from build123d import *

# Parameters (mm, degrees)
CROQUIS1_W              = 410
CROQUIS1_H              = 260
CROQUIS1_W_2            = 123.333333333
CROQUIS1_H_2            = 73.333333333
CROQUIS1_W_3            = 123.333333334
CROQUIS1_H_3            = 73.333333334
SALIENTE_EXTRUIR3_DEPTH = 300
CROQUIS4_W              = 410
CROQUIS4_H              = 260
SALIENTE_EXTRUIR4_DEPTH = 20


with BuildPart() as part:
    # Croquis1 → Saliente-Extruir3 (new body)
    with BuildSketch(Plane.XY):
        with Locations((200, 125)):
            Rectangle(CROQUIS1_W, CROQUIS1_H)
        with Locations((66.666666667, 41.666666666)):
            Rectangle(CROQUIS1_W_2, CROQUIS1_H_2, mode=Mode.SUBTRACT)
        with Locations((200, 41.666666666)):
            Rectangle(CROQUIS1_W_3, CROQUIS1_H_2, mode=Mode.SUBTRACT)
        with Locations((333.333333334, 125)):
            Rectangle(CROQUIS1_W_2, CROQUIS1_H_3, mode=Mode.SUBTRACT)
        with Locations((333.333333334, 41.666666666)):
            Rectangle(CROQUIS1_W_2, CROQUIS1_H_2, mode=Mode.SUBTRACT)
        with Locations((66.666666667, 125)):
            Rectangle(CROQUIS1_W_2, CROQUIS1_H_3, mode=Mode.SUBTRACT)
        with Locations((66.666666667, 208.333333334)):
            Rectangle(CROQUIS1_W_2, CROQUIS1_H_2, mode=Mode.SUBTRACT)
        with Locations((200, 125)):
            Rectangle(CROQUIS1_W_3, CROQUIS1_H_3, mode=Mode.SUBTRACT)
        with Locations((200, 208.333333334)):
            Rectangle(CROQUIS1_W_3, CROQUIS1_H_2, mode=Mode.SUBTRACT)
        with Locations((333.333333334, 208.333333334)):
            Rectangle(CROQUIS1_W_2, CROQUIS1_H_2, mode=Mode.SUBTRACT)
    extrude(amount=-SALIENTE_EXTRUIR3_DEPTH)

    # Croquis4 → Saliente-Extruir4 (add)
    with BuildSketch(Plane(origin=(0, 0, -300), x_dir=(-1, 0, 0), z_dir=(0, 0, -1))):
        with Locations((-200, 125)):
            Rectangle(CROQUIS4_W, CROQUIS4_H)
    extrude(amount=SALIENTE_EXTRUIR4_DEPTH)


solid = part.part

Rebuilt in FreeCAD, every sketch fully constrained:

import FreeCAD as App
import Part
import Sketcher
Q = App.Units.Quantity


def add_polygon(sketch, points):
    """Adds a closed chain of lines whose ends are joined by coincident constraints."""
    first, n = sketch.GeometryCount, len(points)
    for a, b in zip(points, points[1:] + points[:1]):
        sketch.addGeometry(Part.LineSegment(App.Vector(*a, 0), App.Vector(*b, 0)), False)
    for i in range(n):
        sketch.addConstraint(Sketcher.Constraint("Coincident", first + i, 2, first + (i + 1) % n, 1))

doc = App.newDocument("Part")
body = doc.addObject("PartDesign::Body", "Body")

# Sketch on XY plane
sketch1 = body.newObject("Sketcher::SketchObject", "Sketch")
sketch1.AttachmentSupport = (doc.getObject("XY_Plane"), [""])
sketch1.MapMode = "FlatFace"
add_polygon(sketch1, [(-5, 255), (-5, -5), (405, -5), (405, 255)])  # lines 0-3
add_polygon(sketch1, [(128, 5), (5, 5), (5, 78), (128, 78)])  # lines 4-7
add_polygon(sketch1, [(262, 5), (138, 5), (138, 78), (262, 78)])  # lines 8-11
add_polygon(sketch1, [(128, 88), (5, 88), (5, 162), (128, 162)])  # lines 12-15
add_polygon(sketch1, [(262, 88), (138, 88), (138, 162), (262, 162)])  # lines 16-19
add_polygon(sketch1, [(395, 5), (272, 5), (272, 78), (395, 78)])  # lines 20-23
add_polygon(sketch1, [(395, 88), (272, 88), (272, 162), (395, 162)])  # lines 24-27
add_polygon(sketch1, [(128, 172), (5, 172), (5, 245), (128, 245)])  # lines 28-31
add_polygon(sketch1, [(262, 172), (138, 172), (138, 245), (262, 245)])  # lines 32-35
add_polygon(sketch1, [(395, 172), (272, 172), (272, 245), (395, 245)])  # lines 36-39
sketch1.addConstraint(Sketcher.Constraint("Vertical", 0))
sketch1.addConstraint(Sketcher.Constraint("Horizontal", 1))
sketch1.addConstraint(Sketcher.Constraint("Vertical", 2))
sketch1.addConstraint(Sketcher.Constraint("Horizontal", 3))
sketch1.addConstraint(Sketcher.Constraint("Horizontal", 4))
sketch1.addConstraint(Sketcher.Constraint("Vertical", 5))
sketch1.addConstraint(Sketcher.Constraint("Horizontal", 6))
sketch1.addConstraint(Sketcher.Constraint("Vertical", 7))
sketch1.addConstraint(Sketcher.Constraint("Horizontal", 8))
sketch1.addConstraint(Sketcher.Constraint("Vertical", 9))
sketch1.addConstraint(Sketcher.Constraint("Horizontal", 10))
sketch1.addConstraint(Sketcher.Constraint("Vertical", 11))
sketch1.addConstraint(Sketcher.Constraint("Horizontal", 12))
sketch1.addConstraint(Sketcher.Constraint("Vertical", 13))
sketch1.addConstraint(Sketcher.Constraint("Horizontal", 14))
sketch1.addConstraint(Sketcher.Constraint("Vertical", 15))
sketch1.addConstraint(Sketcher.Constraint("Horizontal", 16))
sketch1.addConstraint(Sketcher.Constraint("Vertical", 17))
sketch1.addConstraint(Sketcher.Constraint("Horizontal", 18))
sketch1.addConstraint(Sketcher.Constraint("Vertical", 19))
sketch1.addConstraint(Sketcher.Constraint("Horizontal", 20))
sketch1.addConstraint(Sketcher.Constraint("Vertical", 21))
sketch1.addConstraint(Sketcher.Constraint("Horizontal", 22))
sketch1.addConstraint(Sketcher.Constraint("Vertical", 23))
sketch1.addConstraint(Sketcher.Constraint("Horizontal", 24))
sketch1.addConstraint(Sketcher.Constraint("Vertical", 25))
sketch1.addConstraint(Sketcher.Constraint("Horizontal", 26))
sketch1.addConstraint(Sketcher.Constraint("Vertical", 27))
sketch1.addConstraint(Sketcher.Constraint("Horizontal", 28))
sketch1.addConstraint(Sketcher.Constraint("Vertical", 29))
sketch1.addConstraint(Sketcher.Constraint("Horizontal", 30))
sketch1.addConstraint(Sketcher.Constraint("Vertical", 31))
sketch1.addConstraint(Sketcher.Constraint("Horizontal", 32))
sketch1.addConstraint(Sketcher.Constraint("Vertical", 33))
sketch1.addConstraint(Sketcher.Constraint("Horizontal", 34))
sketch1.addConstraint(Sketcher.Constraint("Vertical", 35))
sketch1.addConstraint(Sketcher.Constraint("Horizontal", 36))
sketch1.addConstraint(Sketcher.Constraint("Vertical", 37))
sketch1.addConstraint(Sketcher.Constraint("Horizontal", 38))
sketch1.addConstraint(Sketcher.Constraint("Vertical", 39))
sketch1.addConstraint(Sketcher.Constraint("Symmetric", 0, 2, 4, 2, -1, 1))
sketch1.addConstraint(Sketcher.Constraint("Horizontal", 7, 2, 8, 2))
sketch1.addConstraint(Sketcher.Constraint("Horizontal", 6, 2, 9, 2))
sketch1.addConstraint(Sketcher.Constraint("Horizontal", 15, 2, 16, 2))
sketch1.addConstraint(Sketcher.Constraint("Horizontal", 14, 2, 17, 2))
sketch1.addConstraint(Sketcher.Constraint("Horizontal", 11, 2, 20, 2))
sketch1.addConstraint(Sketcher.Constraint("Horizontal", 10, 2, 21, 2))
sketch1.addConstraint(Sketcher.Constraint("Horizontal", 19, 2, 24, 2))
sketch1.addConstraint(Sketcher.Constraint("Horizontal", 18, 2, 25, 2))
sketch1.addConstraint(Sketcher.Constraint("Horizontal", 31, 2, 32, 2))
sketch1.addConstraint(Sketcher.Constraint("Horizontal", 30, 2, 33, 2))
sketch1.addConstraint(Sketcher.Constraint("Horizontal", 35, 2, 36, 2))
sketch1.addConstraint(Sketcher.Constraint("Horizontal", 34, 2, 37, 2))
sketch1.addConstraint(Sketcher.Constraint("Vertical", 5, 2, 12, 2))
sketch1.addConstraint(Sketcher.Constraint("Vertical", 7, 2, 14, 2))
sketch1.addConstraint(Sketcher.Constraint("Vertical", 9, 2, 16, 2))
sketch1.addConstraint(Sketcher.Constraint("Vertical", 11, 2, 18, 2))
sketch1.addConstraint(Sketcher.Constraint("Vertical", 21, 2, 24, 2))
sketch1.addConstraint(Sketcher.Constraint("Vertical", 23, 2, 26, 2))
sketch1.addConstraint(Sketcher.Constraint("Vertical", 13, 2, 28, 2))
sketch1.addConstraint(Sketcher.Constraint("Vertical", 15, 2, 30, 2))
sketch1.addConstraint(Sketcher.Constraint("Vertical", 17, 2, 32, 2))
sketch1.addConstraint(Sketcher.Constraint("Vertical", 19, 2, 34, 2))
sketch1.addConstraint(Sketcher.Constraint("Vertical", 25, 2, 36, 2))
sketch1.addConstraint(Sketcher.Constraint("Vertical", 27, 2, 38, 2))
sketch1.addConstraint(Sketcher.Constraint("Equal", 6, 8))
sketch1.addConstraint(Sketcher.Constraint("Equal", 18, 20))
sketch1.addConstraint(Sketcher.Constraint("Equal", 11, 13))
sketch1.addConstraint(Sketcher.Constraint("Equal", 27, 29))
sketch1.addConstraint(Sketcher.Constraint("DistanceX", 1, 1, 1, 2, Q("410 mm")))
sketch1.addConstraint(Sketcher.Constraint("DistanceY", 0, 2, 0, 1, Q("260 mm")))
sketch1.addConstraint(Sketcher.Constraint("DistanceX", 0, 2, -1, 1, Q("5 mm")))
sketch1.addConstraint(Sketcher.Constraint("DistanceY", 0, 2, -1, 1, Q("5 mm")))
sketch1.addConstraint(Sketcher.Constraint("DistanceX", -1, 1, 22, 2, Q("395 mm")))
sketch1.addConstraint(Sketcher.Constraint("DistanceY", -1, 1, 29, 2, Q("245 mm")))
sketch1.addConstraint(Sketcher.Constraint("DistanceX", 7, 2, 8, 2, Q("10 mm")))
sketch1.addConstraint(Sketcher.Constraint("DistanceY", 5, 2, 12, 2, Q("10 mm")))
sketch1.addConstraint(Sketcher.Constraint("DistanceX", 11, 2, 20, 2, Q("10 mm")))
sketch1.addConstraint(Sketcher.Constraint("DistanceY", 13, 2, 28, 2, Q("10 mm")))
pad1 = body.newObject("PartDesign::Pad", "Pad")
pad1.Profile = sketch1
pad1.Length = 300
pad1.Reversed = True

# Sketch on XY plane
sketch2 = body.newObject("Sketcher::SketchObject", "Sketch001")
sketch2.AttachmentSupport = (doc.getObject("XY_Plane"), [""])
sketch2.MapMode = "FlatFace"
sketch2.AttachmentOffset = App.Placement(App.Vector(0, 0, -300), App.Rotation())
add_polygon(sketch2, [(405, 255), (405, -5), (-5, -5), (-5, 255)])  # lines 0-3
sketch2.addConstraint(Sketcher.Constraint("Vertical", 0))
sketch2.addConstraint(Sketcher.Constraint("Horizontal", 1))
sketch2.addConstraint(Sketcher.Constraint("Vertical", 2))
sketch2.addConstraint(Sketcher.Constraint("Horizontal", 3))
sketch2.addConstraint(Sketcher.Constraint("DistanceX", 1, 2, 1, 1, Q("410 mm")))
sketch2.addConstraint(Sketcher.Constraint("DistanceY", 0, 2, 0, 1, Q("260 mm")))
sketch2.addConstraint(Sketcher.Constraint("DistanceX", -1, 1, 0, 2, Q("405 mm")))
sketch2.addConstraint(Sketcher.Constraint("DistanceY", 0, 2, -1, 1, Q("5 mm")))
pad2 = body.newObject("PartDesign::Pad", "Pad001")
pad2.Profile = sketch2
pad2.Length = 20
pad2.Reversed = True

doc.recompute()
